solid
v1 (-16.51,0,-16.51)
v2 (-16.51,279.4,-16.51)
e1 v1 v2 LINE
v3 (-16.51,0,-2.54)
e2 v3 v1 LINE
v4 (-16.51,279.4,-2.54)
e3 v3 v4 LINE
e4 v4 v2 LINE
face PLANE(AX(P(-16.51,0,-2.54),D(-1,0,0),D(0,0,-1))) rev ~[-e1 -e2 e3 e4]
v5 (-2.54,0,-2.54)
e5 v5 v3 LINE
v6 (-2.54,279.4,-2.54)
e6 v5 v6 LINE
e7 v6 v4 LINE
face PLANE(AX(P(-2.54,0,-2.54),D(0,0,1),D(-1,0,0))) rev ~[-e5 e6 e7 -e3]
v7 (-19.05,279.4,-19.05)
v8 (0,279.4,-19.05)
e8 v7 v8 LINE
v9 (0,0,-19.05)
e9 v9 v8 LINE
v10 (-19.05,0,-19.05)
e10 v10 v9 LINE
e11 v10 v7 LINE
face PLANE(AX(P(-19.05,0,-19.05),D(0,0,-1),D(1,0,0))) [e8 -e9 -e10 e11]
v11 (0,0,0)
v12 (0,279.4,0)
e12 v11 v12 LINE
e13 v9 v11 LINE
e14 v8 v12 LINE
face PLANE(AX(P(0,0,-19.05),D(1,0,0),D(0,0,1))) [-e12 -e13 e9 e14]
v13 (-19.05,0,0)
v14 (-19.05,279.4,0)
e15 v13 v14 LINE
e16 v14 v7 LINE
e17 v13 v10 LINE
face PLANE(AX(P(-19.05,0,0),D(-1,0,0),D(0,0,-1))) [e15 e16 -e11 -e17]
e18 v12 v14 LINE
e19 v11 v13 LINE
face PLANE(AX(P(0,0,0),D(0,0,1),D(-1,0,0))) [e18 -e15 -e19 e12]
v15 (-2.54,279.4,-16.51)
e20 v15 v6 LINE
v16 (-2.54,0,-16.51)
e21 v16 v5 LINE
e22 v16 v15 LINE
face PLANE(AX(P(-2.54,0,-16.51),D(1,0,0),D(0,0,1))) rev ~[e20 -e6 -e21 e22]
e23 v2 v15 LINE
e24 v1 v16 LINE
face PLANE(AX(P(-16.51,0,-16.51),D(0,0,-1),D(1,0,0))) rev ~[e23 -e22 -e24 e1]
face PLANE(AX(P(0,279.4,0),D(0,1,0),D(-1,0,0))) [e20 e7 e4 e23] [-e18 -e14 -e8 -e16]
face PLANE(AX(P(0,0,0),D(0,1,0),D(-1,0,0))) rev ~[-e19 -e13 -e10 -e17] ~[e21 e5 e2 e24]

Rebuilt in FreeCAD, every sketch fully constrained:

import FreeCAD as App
import Part
import Sketcher
Q = App.Units.Quantity


def add_polygon(sketch, points):
    """Adds a closed chain of lines whose ends are joined by coincident constraints."""
    first, n = sketch.GeometryCount, len(points)
    for a, b in zip(points, points[1:] + points[:1]):
        sketch.addGeometry(Part.LineSegment(App.Vector(*a, 0), App.Vector(*b, 0)), False)
    for i in range(n):
        sketch.addConstraint(Sketcher.Constraint("Coincident", first + i, 2, first + (i + 1) % n, 1))

doc = App.newDocument("Part")
body = doc.addObject("PartDesign::Body", "Body")

# Sketch on XZ plane
sketch1 = body.newObject("Sketcher::SketchObject", "Sketch")
sketch1.AttachmentSupport = (doc.getObject("XZ_Plane"), [""])
sketch1.MapMode = "FlatFace"
add_polygon(sketch1, [(-19, 0), (0, 0), (0, -19), (-19, -19)])  # lines 0-3
add_polygon(sketch1, [(-3, -17), (-3, -3), (-17, -3), (-17, -17)])  # lines 4-7
sketch1.addConstraint(Sketcher.Constraint("Horizontal", 0))
sketch1.addConstraint(Sketcher.Constraint("Vertical", 1))
sketch1.addConstraint(Sketcher.Constraint("Horizontal", 2))
sketch1.addConstraint(Sketcher.Constraint("Vertical", 3))
sketch1.addConstraint(Sketcher.Constraint("Vertical", 4))
sketch1.addConstraint(Sketcher.Constraint("Horizontal", 5))
sketch1.addConstraint(Sketcher.Constraint("Vertical", 6))
sketch1.addConstraint(Sketcher.Constraint("Horizontal", 7))
sketch1.addConstraint(Sketcher.Constraint("Coincident", 0, 2, -1, 1))
sketch1.addConstraint(Sketcher.Constraint("Equal", 2, 1))
sketch1.addConstraint(Sketcher.Constraint("Equal", 7, 4))
sketch1.addConstraint(Sketcher.Constraint("DistanceX", 0, 1, 0, 2, Q("0.75 in")))
sketch1.addConstraint(Sketcher.Constraint("DistanceX", 4, 2, -1, 1, Q("0.1 in")))
sketch1.addConstraint(Sketcher.Constraint("DistanceY", 4, 2, -1, 1, Q("0.1 in")))
sketch1.addConstraint(Sketcher.Constraint("DistanceX", 3, 2, 5, 2, Q("0.1 in")))
pad1 = body.newObject("PartDesign::Pad", "Pad")
pad1.Profile = sketch1
pad1.Length = Q("11 in")
pad1.Reversed = True

doc.recompute()
